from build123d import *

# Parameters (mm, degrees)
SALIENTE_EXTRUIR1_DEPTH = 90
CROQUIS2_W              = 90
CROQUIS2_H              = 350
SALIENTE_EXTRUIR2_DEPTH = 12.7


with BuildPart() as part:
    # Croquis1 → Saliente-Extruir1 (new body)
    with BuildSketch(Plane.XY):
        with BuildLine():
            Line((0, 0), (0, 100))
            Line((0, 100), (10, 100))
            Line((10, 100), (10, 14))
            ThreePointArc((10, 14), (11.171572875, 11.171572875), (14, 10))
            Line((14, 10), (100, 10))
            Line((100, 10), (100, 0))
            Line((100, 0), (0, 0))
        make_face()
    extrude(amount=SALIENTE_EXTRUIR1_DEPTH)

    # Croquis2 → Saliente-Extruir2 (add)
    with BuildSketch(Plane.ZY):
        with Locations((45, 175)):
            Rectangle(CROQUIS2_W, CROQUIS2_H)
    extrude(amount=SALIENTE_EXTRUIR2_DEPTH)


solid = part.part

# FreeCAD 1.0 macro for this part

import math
import FreeCAD as App
import Part
import Sketcher
from FreeCAD import Vector
Q = App.Units.Quantity


def add_polygon(sketch, points):
    """Adds a closed chain of lines whose ends are joined by coincident constraints."""
    first, n = sketch.GeometryCount, len(points)
    for a, b in zip(points, points[1:] + points[:1]):
        sketch.addGeometry(Part.LineSegment(App.Vector(*a, 0), App.Vector(*b, 0)), False)
    for i in range(n):
        sketch.addConstraint(Sketcher.Constraint("Coincident", first + i, 2, first + (i + 1) % n, 1))

doc = App.newDocument("Part")
body = doc.addObject("PartDesign::Body", "Body")

sketch1 = body.newObject("Sketcher::SketchObject", "Sketch")
sketch1.AttachmentSupport = (doc.getObject("XY_Plane"), [""])
sketch1.MapMode = "FlatFace"
sketch1.addGeometry([
    Part.LineSegment(Vector(0, 100, 0), Vector(0, 0, 0)),
    Part.LineSegment(Vector(0, 0, 0), Vector(100, 0, 0)),
    Part.LineSegment(Vector(100, 0, 0), Vector(100, 10, 0)),
    Part.LineSegment(Vector(100, 10, 0), Vector(14, 10, 0)),
    Part.ArcOfCircle(Part.Circle(Vector(14, 14, 0), Vector(0, 0, 1), 4), math.radians(180), math.radians(270)),
    Part.LineSegment(Vector(10, 14, 0), Vector(10, 100, 0)),
    Part.LineSegment(Vector(10, 100, 0), Vector(0, 100, 0)),
], False)
sketch1.addConstraint([
    Sketcher.Constraint("Coincident", 0, 2, 1, 1),
    Sketcher.Constraint("Coincident", 1, 2, 2, 1),
    Sketcher.Constraint("Coincident", 2, 2, 3, 1),
    Sketcher.Constraint("Tangent", 3, 2, 4, 2),
    Sketcher.Constraint("Tangent", 4, 1, 5, 1),
    Sketcher.Constraint("Coincident", 5, 2, 6, 1),
    Sketcher.Constraint("Coincident", 6, 2, 0, 1),
    Sketcher.Constraint("Vertical", 0),
    Sketcher.Constraint("Horizontal", 1),
    Sketcher.Constraint("Vertical", 2),
    Sketcher.Constraint("Horizontal", 3),
    Sketcher.Constraint("Vertical", 5),
    Sketcher.Constraint("Horizontal", 6),
    Sketcher.Constraint("Coincident", 0, 2, -1, 1),
    Sketcher.Constraint("Equal", 1, 0),
    Sketcher.Constraint("Equal", 6, 2),
    Sketcher.Constraint("Radius", 4, Q("4 mm")),
    Sketcher.Constraint("DistanceX", 1, 1, 1, 2, Q("100 mm")),
    Sketcher.Constraint("DistanceX", 3, 2, 3, 1, Q("86 mm")),
])
pad1 = body.newObject("PartDesign::Pad", "Pad")
pad1.Profile = sketch1
pad1.Length = 90

sketch2 = body.newObject("Sketcher::SketchObject", "Sketch001")
sketch2.AttachmentSupport = (doc.getObject("YZ_Plane"), [""])
sketch2.MapMode = "FlatFace"
add_polygon(sketch2, [(350, 0), (0, 0), (0, 90), (350, 90)])
sketch2.addConstraint([
    Sketcher.Constraint("Horizontal", 0),
    Sketcher.Constraint("Vertical", 1),
    Sketcher.Constraint("Horizontal", 2),
    Sketcher.Constraint("Vertical", 3),
    Sketcher.Constraint("Coincident", 0, 2, -1, 1),
    Sketcher.Constraint("DistanceX", 0, 2, 0, 1, Q("350 mm")),
    Sketcher.Constraint("DistanceY", 1, 1, 1, 2, Q("90 mm")),
])
pad2 = body.newObject("PartDesign::Pad", "Pad001")
pad2.Profile = sketch2
pad2.Length = 12.7
pad2.Reversed = True

doc.recompute()
